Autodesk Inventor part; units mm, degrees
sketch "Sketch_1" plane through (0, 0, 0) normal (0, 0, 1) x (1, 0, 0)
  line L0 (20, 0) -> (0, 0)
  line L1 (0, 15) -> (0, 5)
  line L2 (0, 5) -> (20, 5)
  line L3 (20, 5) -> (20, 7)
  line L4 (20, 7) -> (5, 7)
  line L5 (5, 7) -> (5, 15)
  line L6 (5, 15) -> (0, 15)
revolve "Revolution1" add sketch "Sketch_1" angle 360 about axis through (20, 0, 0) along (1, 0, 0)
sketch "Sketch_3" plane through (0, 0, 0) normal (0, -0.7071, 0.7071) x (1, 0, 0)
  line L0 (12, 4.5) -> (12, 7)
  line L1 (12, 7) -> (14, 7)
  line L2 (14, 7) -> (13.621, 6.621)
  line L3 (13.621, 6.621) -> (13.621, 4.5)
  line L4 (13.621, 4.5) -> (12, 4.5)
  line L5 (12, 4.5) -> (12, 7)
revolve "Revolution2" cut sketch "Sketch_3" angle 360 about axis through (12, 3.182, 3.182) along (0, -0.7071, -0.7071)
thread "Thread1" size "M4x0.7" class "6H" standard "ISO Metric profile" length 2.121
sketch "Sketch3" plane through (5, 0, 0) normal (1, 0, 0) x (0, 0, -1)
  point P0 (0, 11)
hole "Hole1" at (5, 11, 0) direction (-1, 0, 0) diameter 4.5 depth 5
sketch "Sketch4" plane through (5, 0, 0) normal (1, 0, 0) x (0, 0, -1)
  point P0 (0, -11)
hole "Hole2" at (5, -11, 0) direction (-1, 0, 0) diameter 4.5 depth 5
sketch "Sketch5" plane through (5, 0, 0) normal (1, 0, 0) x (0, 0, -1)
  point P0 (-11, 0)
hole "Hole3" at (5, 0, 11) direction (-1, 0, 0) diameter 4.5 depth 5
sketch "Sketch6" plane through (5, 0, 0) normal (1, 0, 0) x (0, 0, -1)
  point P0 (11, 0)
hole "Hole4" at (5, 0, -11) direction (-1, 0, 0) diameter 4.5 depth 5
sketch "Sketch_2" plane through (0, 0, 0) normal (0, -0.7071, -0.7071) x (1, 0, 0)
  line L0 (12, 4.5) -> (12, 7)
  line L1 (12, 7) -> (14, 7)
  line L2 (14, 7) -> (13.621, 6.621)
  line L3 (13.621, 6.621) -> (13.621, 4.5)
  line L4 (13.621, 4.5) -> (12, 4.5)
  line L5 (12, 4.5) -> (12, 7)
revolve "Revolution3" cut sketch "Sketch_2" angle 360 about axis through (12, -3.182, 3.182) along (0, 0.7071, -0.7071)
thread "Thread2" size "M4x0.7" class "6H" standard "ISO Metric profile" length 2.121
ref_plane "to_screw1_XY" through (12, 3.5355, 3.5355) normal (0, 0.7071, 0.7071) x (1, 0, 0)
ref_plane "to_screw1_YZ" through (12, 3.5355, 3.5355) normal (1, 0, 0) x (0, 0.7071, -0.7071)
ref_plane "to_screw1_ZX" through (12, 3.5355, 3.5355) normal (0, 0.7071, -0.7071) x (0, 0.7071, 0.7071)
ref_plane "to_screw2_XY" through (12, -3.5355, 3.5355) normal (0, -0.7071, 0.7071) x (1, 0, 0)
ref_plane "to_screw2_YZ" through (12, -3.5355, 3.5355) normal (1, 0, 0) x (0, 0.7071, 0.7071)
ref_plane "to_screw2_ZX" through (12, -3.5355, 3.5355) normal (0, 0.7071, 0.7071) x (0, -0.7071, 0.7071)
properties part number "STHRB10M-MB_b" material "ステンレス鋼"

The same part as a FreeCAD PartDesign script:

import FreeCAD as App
import Part
import Sketcher

V = App.Vector
Q = App.Units.Quantity


def add_polygon(sketch, points):
    """Adds a closed chain of lines whose ends are joined by coincident constraints."""
    first, n = sketch.GeometryCount, len(points)
    for a, b in zip(points, points[1:] + points[:1]):
        sketch.addGeometry(Part.LineSegment(App.Vector(*a, 0), App.Vector(*b, 0)), False)
    for i in range(n):
        sketch.addConstraint(Sketcher.Constraint("Coincident", first + i, 2, first + (i + 1) % n, 1))

doc = App.newDocument("Part")
params = doc.addObject("Spreadsheet::Sheet", "Params")
for row, (alias, value) in enumerate([
    ("sketch1_width", "5 mm"),
    ("sketch1_width2", "20 mm"),
    ("sketch1_height", "10 mm"),
    ("sketch1_height2", "2 mm"),
    ("revolution_angle", "360 deg"),
    ("sketch2_width", "2 mm"),
    ("sketch2_height", "2.5 mm"),
    ("groove_angle", "360 deg"),
    ("sketch3_diameter", "4.5 mm"),
    ("hole_diameter", "4.5 mm"),
    ("hole_depth", "5 mm"),
    ("sketch4_diameter", "4.5 mm"),
    ("hole2_diameter", "4.5 mm"),
    ("hole2_depth", "5 mm"),
    ("sketch5_diameter", "4.5 mm"),
    ("hole3_diameter", "4.5 mm"),
    ("hole3_depth", "5 mm"),
    ("sketch6_diameter", "4.5 mm"),
    ("hole4_diameter", "4.5 mm"),
    ("hole4_depth", "5 mm"),
    ("sketch7_width", "2 mm"),
    ("sketch7_height", "2.5 mm"),
    ("groove2_angle", "360 deg"),
], start=1):
    params.set(f"A{row}", alias)
    params.set(f"B{row}", "=" + value)
    params.setAlias(f"B{row}", alias)

body = doc.addObject("PartDesign::Body", "Body")

# Sketch on XY plane
sketch1 = body.newObject("Sketcher::SketchObject", "Sketch")
sketch1.AttachmentSupport = (doc.getObject("XY_Plane"), [""])
sketch1.MapMode = "FlatFace"
add_polygon(sketch1, [(5, 15), (0, 15), (0, 5), (20, 5), (20, 7), (5, 7)])  # lines 0-5
sketch1.addConstraint(Sketcher.Constraint("Horizontal", 0))
sketch1.addConstraint(Sketcher.Constraint("Vertical", 1))
sketch1.addConstraint(Sketcher.Constraint("Horizontal", 2))
sketch1.addConstraint(Sketcher.Constraint("Vertical", 3))
sketch1.addConstraint(Sketcher.Constraint("Horizontal", 4))
sketch1.addConstraint(Sketcher.Constraint("Vertical", 5))
sketch1.addConstraint(Sketcher.Constraint("PointOnObject", 0, 2, -2))
sketch1.addConstraint(Sketcher.Constraint("DistanceX", 0, 2, 0, 1, Q("5 mm")))
sketch1.addConstraint(Sketcher.Constraint("DistanceX", 2, 1, 2, 2, Q("20 mm")))
sketch1.addConstraint(Sketcher.Constraint("DistanceY", 1, 2, 1, 1, Q("10 mm")))
sketch1.addConstraint(Sketcher.Constraint("DistanceY", 3, 1, 3, 2, Q("2 mm")))
sketch1.addConstraint(Sketcher.Constraint("DistanceY", -1, 1, 0, 2, Q("15 mm")))
sketch1.setExpression("Constraints[13]", "Params.sketch1_width")
sketch1.setExpression("Constraints[14]", "Params.sketch1_width2")
sketch1.setExpression("Constraints[15]", "Params.sketch1_height")
sketch1.setExpression("Constraints[16]", "Params.sketch1_height2")
revolution = body.newObject("PartDesign::Revolution", "Revolution")
revolution.Profile = sketch1
revolution.ReferenceAxis = (sketch1, ["H_Axis"])
revolution.setExpression("Angle", "Params.revolution_angle")

# Sketch on an angled plane
sketch2 = body.newObject("Sketcher::SketchObject", "Sketch001")
sketch2.Placement = App.Placement(V(0, 0, 0), App.Rotation(V(1, 0, 0), V(0, 0.707106781, 0.707106781), V(0, -0.707106781, 0.707106781), "ZXY"))
add_polygon(sketch2, [(12, 7), (12, 4.5), (13.6, 4.5), (13.6, 6.6), (14, 7)])  # lines 0-4
sketch2.addGeometry(Part.LineSegment(V(12, 7, 0), V(12, 4.5, 0)), True)  # axis
sketch2.addConstraint(Sketcher.Constraint("Vertical", 0))
sketch2.addConstraint(Sketcher.Constraint("Horizontal", 1))
sketch2.addConstraint(Sketcher.Constraint("Vertical", 2))
sketch2.addConstraint(Sketcher.Constraint("Horizontal", 4))
sketch2.addConstraint(Sketcher.Constraint("Vertical", 5))
sketch2.addConstraint(Sketcher.Constraint("Coincident", 5, 1, 4, 2))
sketch2.addConstraint(Sketcher.Constraint("Horizontal", 1, 2, 5, 2))
sketch2.addConstraint(Sketcher.Constraint("DistanceX", 4, 2, 4, 1, Q("2 mm")))
sketch2.addConstraint(Sketcher.Constraint("Angle", 3, Q("45 deg")))
sketch2.addConstraint(Sketcher.Constraint("DistanceY", 0, 2, 0, 1, Q("2.5 mm")))
sketch2.addConstraint(Sketcher.Constraint("DistanceX", -1, 1, 0, 2, Q("12 mm")))
sketch2.addConstraint(Sketcher.Constraint("DistanceY", -1, 1, 3, 2, Q("7 mm")))
sketch2.addConstraint(Sketcher.Constraint("DistanceX", 1, 1, 1, 2, Q("1.621 mm")))
sketch2.setExpression("Constraints[12]", "Params.sketch2_width")
sketch2.setExpression("Constraints[14]", "Params.sketch2_height")
groove = body.newObject("PartDesign::Groove", "Groove")
groove.Profile = sketch2
groove.ReferenceAxis = (sketch2, ["Axis0"])
groove.setExpression("Angle", "Params.groove_angle")

# Sketch on YZ plane
sketch3 = body.newObject("Sketcher::SketchObject", "Sketch002")
sketch3.AttachmentSupport = (doc.getObject("YZ_Plane"), [""])
sketch3.MapMode = "FlatFace"
sketch3.AttachmentOffset = App.Placement(V(0, 0, 5), App.Rotation())
sketch3.addGeometry(Part.Circle(V(11, 0, 0), V(0, 0, 1), 2.2), False)
sketch3.addConstraint(Sketcher.Constraint("PointOnObject", 0, 3, -1))
sketch3.addConstraint(Sketcher.Constraint("Diameter", 0, Q("4.5 mm")))
sketch3.addConstraint(Sketcher.Constraint("DistanceX", -1, 1, 0, 3, Q("11 mm")))
sketch3.setExpression("Constraints[1]", "Params.sketch3_diameter")
doc.recompute()
hole = body.newObject("PartDesign::Hole", "Hole")
hole.Profile = sketch3
hole.ThreadType = "None"
hole.setExpression("Diameter", "Params.hole_diameter")
hole.DepthType = "Dimension"
hole.setExpression("Depth", "Params.hole_depth")
hole.DrillPoint = "Flat"

# Sketch on YZ plane
sketch4 = body.newObject("Sketcher::SketchObject", "Sketch003")
sketch4.AttachmentSupport = (doc.getObject("YZ_Plane"), [""])
sketch4.MapMode = "FlatFace"
sketch4.AttachmentOffset = App.Placement(V(0, 0, 5), App.Rotation())
sketch4.addGeometry(Part.Circle(V(-11, 0, 0), V(0, 0, 1), 2.2), False)
sketch4.addConstraint(Sketcher.Constraint("PointOnObject", 0, 3, -1))
sketch4.addConstraint(Sketcher.Constraint("Diameter", 0, Q("4.5 mm")))
sketch4.addConstraint(Sketcher.Constraint("DistanceX", 0, 3, -1, 1, Q("11 mm")))
sketch4.setExpression("Constraints[1]", "Params.sketch4_diameter")
doc.recompute()
hole2 = body.newObject("PartDesign::Hole", "Hole001")
hole2.Profile = sketch4
hole2.ThreadType = "None"
hole2.setExpression("Diameter", "Params.hole2_diameter")
hole2.DepthType = "Dimension"
hole2.setExpression("Depth", "Params.hole2_depth")
hole2.DrillPoint = "Flat"

# Sketch on YZ plane
sketch5 = body.newObject("Sketcher::SketchObject", "Sketch004")
sketch5.AttachmentSupport = (doc.getObject("YZ_Plane"), [""])
sketch5.MapMode = "FlatFace"
sketch5.AttachmentOffset = App.Placement(V(0, 0, 5), App.Rotation())
sketch5.addGeometry(Part.Circle(V(0, 11, 0), V(0, 0, 1), 2.2), False)
sketch5.addConstraint(Sketcher.Constraint("PointOnObject", 0, 3, -2))
sketch5.addConstraint(Sketcher.Constraint("Diameter", 0, Q("4.5 mm")))
sketch5.addConstraint(Sketcher.Constraint("DistanceY", -1, 1, 0, 3, Q("11 mm")))
sketch5.setExpression("Constraints[1]", "Params.sketch5_diameter")
doc.recompute()
hole3 = body.newObject("PartDesign::Hole", "Hole002")
hole3.Profile = sketch5
hole3.ThreadType = "None"
hole3.setExpression("Diameter", "Params.hole3_diameter")
hole3.DepthType = "Dimension"
hole3.setExpression("Depth", "Params.hole3_depth")
hole3.DrillPoint = "Flat"

# Sketch on YZ plane
sketch6 = body.newObject("Sketcher::SketchObject", "Sketch005")
sketch6.AttachmentSupport = (doc.getObject("YZ_Plane"), [""])
sketch6.MapMode = "FlatFace"
sketch6.AttachmentOffset = App.Placement(V(0, 0, 5), App.Rotation())
sketch6.addGeometry(Part.Circle(V(0, -11, 0), V(0, 0, 1), 2.2), False)
sketch6.addConstraint(Sketcher.Constraint("PointOnObject", 0, 3, -2))
sketch6.addConstraint(Sketcher.Constraint("Diameter", 0, Q("4.5 mm")))
sketch6.addConstraint(Sketcher.Constraint("DistanceY", 0, 3, -1, 1, Q("11 mm")))
sketch6.setExpression("Constraints[1]", "Params.sketch6_diameter")
doc.recompute()
hole4 = body.newObject("PartDesign::Hole", "Hole003")
hole4.Profile = sketch6
hole4.ThreadType = "None"
hole4.setExpression("Diameter", "Params.hole4_diameter")
hole4.DepthType = "Dimension"
hole4.setExpression("Depth", "Params.hole4_depth")
hole4.DrillPoint = "Flat"

# Sketch on an angled plane
sketch7 = body.newObject("Sketcher::SketchObject", "Sketch006")
sketch7.Placement = App.Placement(V(0, 0, 0), App.Rotation(V(1, 0, 0), V(0, -0.707106781, 0.707106781), V(0, -0.707106781, -0.707106781), "ZXY"))
add_polygon(sketch7, [(12, 7), (12, 4.5), (13.6, 4.5), (13.6, 6.6), (14, 7)])  # lines 0-4
sketch7.addGeometry(Part.LineSegment(V(12, 7, 0), V(12, 4.5, 0)), True)  # axis
sketch7.addConstraint(Sketcher.Constraint("Vertical", 0))
sketch7.addConstraint(Sketcher.Constraint("Horizontal", 1))
sketch7.addConstraint(Sketcher.Constraint("Vertical", 2))
sketch7.addConstraint(Sketcher.Constraint("Horizontal", 4))
sketch7.addConstraint(Sketcher.Constraint("Vertical", 5))
sketch7.addConstraint(Sketcher.Constraint("Coincident", 5, 1, 4, 2))
sketch7.addConstraint(Sketcher.Constraint("Horizontal", 1, 2, 5, 2))
sketch7.addConstraint(Sketcher.Constraint("DistanceX", 4, 2, 4, 1, Q("2 mm")))
sketch7.addConstraint(Sketcher.Constraint("Angle", 3, Q("45 deg")))
sketch7.addConstraint(Sketcher.Constraint("DistanceY", 0, 2, 0, 1, Q("2.5 mm")))
sketch7.addConstraint(Sketcher.Constraint("DistanceX", -1, 1, 0, 2, Q("12 mm")))
sketch7.addConstraint(Sketcher.Constraint("DistanceY", -1, 1, 3, 2, Q("7 mm")))
sketch7.addConstraint(Sketcher.Constraint("DistanceX", 1, 1, 1, 2, Q("1.621 mm")))
sketch7.setExpression("Constraints[12]", "Params.sketch7_width")
sketch7.setExpression("Constraints[14]", "Params.sketch7_height")
groove2 = body.newObject("PartDesign::Groove", "Groove001")
groove2.Profile = sketch7
groove2.ReferenceAxis = (sketch7, ["Axis0"])
groove2.setExpression("Angle", "Params.groove2_angle")

doc.recompute()
